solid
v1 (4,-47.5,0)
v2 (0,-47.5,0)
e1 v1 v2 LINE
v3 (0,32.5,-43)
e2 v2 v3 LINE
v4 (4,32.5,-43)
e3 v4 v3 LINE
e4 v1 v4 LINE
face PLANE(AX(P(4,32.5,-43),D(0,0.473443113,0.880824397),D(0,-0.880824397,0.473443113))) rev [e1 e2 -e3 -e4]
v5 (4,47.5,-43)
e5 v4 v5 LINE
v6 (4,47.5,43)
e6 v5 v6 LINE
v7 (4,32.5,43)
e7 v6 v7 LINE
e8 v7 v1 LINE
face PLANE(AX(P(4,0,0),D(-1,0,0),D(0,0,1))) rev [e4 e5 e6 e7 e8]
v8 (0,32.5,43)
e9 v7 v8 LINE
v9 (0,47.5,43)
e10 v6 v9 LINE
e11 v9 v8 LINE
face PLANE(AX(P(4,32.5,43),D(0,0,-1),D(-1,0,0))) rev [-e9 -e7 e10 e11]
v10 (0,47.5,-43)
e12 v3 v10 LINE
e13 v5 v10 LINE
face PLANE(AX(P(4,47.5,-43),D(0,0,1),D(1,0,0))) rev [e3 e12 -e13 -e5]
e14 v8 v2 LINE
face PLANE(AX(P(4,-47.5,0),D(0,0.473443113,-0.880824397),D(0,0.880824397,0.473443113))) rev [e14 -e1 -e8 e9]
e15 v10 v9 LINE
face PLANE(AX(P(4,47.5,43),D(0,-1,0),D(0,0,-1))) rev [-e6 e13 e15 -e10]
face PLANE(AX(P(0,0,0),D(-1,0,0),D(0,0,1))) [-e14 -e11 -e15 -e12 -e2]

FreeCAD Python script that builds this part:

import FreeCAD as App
import Part
import Sketcher
from FreeCAD import Vector
Q = App.Units.Quantity


def add_polygon(sketch, points):
    """Adds a closed chain of lines whose ends are joined by coincident constraints."""
    first, n = sketch.GeometryCount, len(points)
    for a, b in zip(points, points[1:] + points[:1]):
        sketch.addGeometry(Part.LineSegment(App.Vector(*a, 0), App.Vector(*b, 0)), False)
    for i in range(n):
        sketch.addConstraint(Sketcher.Constraint("Coincident", first + i, 2, first + (i + 1) % n, 1))

doc = App.newDocument("Part")
body = doc.addObject("PartDesign::Body", "Body")

# Sketch on YZ plane
sketch1 = doc.addObject("Sketcher::SketchObject", "Sketch")
body.addObject(sketch1)
sketch1.AttachmentSupport = (doc.YZ_Plane, [""])
sketch1.MapMode = "FlatFace"
add_polygon(sketch1, [(48, -43), (48, 43), (32, 43), (-48, 0), (32, -43)])  # lines 0-4
sketch1.addConstraint(Sketcher.Constraint("Vertical", 0))
sketch1.addConstraint(Sketcher.Constraint("Horizontal", 1))
sketch1.addConstraint(Sketcher.Constraint("Horizontal", 4))
sketch1.addConstraint(Sketcher.Constraint("Symmetric", 1, 2, 3, 2, -1))
sketch1.addConstraint(Sketcher.Constraint("PointOnObject", 2, 2, -1))
sketch1.addConstraint(Sketcher.Constraint("DistanceX", 1, 2, 1, 1, Q("15 mm")))
sketch1.addConstraint(Sketcher.Constraint("DistanceY", 0, 1, 0, 2, Q("86 mm")))
sketch1.addConstraint(Sketcher.Constraint("DistanceX", 2, 2, 1, 2, Q("80 mm")))
sketch1.addConstraint(Sketcher.Constraint("DistanceX", -1, 1, 0, 2, Q("47.5 mm")))
pad1 = doc.addObject("PartDesign::Pad", "Pad")
body.addObject(pad1)
pad1.Profile = sketch1
pad1.Length = 4

doc.recompute()
